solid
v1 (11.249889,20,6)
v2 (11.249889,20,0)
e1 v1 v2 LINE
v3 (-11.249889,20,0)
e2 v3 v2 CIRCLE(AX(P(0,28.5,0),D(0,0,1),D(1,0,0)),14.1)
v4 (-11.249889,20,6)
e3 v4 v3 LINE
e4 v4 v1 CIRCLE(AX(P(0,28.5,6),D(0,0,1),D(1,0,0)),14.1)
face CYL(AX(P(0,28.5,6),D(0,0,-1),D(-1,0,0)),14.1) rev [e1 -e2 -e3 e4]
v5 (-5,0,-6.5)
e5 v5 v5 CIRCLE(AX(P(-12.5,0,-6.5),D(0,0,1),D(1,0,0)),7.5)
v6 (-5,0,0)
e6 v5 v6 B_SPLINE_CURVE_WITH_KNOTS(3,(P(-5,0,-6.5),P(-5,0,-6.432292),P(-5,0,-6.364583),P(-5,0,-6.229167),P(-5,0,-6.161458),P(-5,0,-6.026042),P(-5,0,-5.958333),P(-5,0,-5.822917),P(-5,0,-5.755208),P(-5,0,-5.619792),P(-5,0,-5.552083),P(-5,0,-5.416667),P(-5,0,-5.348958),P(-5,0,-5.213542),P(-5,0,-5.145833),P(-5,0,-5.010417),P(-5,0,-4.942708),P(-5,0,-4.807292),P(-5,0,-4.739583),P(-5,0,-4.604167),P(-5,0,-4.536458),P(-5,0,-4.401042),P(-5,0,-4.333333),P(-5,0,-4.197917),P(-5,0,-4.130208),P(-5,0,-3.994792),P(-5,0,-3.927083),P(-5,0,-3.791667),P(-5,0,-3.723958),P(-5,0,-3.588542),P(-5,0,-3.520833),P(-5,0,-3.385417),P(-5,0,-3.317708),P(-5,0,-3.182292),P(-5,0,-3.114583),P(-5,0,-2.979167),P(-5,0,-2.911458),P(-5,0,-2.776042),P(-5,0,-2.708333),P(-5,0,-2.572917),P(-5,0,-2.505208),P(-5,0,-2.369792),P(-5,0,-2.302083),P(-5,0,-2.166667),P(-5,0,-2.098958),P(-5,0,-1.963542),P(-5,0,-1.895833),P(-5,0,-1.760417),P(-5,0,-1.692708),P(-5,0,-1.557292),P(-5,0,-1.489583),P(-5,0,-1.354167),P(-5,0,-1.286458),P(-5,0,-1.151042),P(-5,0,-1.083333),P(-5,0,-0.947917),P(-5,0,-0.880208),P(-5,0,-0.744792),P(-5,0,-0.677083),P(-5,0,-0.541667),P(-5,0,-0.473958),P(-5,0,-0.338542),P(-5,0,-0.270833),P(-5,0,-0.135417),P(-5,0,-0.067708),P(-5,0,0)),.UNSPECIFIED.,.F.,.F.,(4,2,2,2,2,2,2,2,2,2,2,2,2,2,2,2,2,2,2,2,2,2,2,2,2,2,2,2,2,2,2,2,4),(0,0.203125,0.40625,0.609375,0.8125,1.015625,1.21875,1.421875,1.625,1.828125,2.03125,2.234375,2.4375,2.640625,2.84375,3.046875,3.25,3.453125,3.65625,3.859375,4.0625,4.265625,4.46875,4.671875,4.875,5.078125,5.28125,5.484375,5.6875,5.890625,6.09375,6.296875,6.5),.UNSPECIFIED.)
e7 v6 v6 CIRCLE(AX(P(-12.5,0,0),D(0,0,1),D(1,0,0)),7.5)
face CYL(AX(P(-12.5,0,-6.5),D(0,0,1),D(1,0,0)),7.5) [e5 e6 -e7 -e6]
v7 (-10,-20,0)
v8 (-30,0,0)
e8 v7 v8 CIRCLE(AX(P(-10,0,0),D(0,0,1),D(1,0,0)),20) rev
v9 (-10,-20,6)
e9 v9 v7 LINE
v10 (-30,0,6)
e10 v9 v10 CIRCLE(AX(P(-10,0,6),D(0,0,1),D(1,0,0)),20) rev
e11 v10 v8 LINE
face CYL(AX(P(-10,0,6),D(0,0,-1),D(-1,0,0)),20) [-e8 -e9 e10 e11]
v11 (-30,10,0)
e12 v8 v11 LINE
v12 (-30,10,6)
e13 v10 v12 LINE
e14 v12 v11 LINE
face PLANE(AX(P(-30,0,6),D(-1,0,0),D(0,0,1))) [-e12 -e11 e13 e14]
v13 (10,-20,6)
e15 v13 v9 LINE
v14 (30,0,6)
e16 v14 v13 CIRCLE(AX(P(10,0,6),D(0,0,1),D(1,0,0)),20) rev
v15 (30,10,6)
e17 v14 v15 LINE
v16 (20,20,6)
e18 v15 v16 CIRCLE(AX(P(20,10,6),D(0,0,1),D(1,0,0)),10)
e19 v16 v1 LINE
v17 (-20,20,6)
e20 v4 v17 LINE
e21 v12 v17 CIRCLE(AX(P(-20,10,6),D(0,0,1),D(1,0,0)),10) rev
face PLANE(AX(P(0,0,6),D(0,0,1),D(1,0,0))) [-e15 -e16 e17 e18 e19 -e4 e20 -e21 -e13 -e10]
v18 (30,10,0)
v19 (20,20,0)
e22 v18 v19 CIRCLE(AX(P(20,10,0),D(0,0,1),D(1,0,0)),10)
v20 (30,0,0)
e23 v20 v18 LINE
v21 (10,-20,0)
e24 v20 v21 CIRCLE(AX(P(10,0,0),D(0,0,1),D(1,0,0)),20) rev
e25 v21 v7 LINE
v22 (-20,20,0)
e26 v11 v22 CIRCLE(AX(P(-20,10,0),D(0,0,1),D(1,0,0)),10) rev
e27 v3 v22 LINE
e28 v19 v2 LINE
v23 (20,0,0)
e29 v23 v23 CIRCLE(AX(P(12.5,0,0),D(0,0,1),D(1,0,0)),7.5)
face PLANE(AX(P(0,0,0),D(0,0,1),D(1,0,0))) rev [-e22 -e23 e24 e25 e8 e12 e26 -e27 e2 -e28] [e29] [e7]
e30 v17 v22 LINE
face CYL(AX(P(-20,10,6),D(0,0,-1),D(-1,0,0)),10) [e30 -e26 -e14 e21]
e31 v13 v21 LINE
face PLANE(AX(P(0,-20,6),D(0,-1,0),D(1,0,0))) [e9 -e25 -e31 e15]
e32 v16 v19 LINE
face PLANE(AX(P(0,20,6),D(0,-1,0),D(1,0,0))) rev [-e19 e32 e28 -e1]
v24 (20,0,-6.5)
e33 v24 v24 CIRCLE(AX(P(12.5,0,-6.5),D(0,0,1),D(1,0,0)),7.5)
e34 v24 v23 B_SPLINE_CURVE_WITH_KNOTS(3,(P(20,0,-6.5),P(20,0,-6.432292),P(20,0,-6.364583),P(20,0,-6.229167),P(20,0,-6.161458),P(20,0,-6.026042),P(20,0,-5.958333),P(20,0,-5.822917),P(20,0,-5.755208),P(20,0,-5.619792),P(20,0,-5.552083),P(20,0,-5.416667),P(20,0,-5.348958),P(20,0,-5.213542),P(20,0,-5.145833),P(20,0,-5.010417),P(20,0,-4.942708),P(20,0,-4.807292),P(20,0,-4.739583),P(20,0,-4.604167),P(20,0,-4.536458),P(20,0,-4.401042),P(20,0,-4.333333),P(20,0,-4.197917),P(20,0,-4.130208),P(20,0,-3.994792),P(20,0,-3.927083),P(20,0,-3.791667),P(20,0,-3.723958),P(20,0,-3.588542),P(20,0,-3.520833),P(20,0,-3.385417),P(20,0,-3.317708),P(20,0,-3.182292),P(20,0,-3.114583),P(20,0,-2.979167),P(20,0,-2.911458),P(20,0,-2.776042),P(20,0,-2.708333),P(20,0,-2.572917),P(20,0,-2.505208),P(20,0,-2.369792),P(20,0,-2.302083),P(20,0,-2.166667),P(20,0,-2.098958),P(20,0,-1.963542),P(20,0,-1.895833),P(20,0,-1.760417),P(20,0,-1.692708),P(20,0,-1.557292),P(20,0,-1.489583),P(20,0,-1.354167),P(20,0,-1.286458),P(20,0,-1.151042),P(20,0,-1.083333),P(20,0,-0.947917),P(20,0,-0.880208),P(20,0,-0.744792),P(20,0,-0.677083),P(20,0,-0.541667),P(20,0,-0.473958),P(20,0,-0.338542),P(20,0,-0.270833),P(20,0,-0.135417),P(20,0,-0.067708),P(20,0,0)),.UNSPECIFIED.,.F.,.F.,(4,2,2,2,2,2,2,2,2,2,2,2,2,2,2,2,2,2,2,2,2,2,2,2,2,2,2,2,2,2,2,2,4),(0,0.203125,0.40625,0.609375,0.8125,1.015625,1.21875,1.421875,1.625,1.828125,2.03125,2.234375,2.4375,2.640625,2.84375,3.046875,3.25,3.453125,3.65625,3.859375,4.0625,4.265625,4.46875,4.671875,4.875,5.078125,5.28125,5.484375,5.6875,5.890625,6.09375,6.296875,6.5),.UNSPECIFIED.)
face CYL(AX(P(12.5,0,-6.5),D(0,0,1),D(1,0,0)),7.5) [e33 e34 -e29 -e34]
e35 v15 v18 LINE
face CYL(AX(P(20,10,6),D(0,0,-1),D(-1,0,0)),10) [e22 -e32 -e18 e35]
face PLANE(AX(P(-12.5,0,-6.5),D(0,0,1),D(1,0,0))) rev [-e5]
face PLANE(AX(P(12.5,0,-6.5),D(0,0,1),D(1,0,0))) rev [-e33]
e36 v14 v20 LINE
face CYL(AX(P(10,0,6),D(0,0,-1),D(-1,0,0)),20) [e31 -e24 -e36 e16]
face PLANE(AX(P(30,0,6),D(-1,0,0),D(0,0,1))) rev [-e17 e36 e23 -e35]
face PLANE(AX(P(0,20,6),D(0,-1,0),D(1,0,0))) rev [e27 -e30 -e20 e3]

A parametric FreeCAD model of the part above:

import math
import FreeCAD as App
import Part
import Sketcher
from FreeCAD import Vector
Q = App.Units.Quantity

doc = App.newDocument("Part")
params = doc.addObject("Spreadsheet::Sheet", "Params")
for row, (alias, value) in enumerate([
    ("sketch1_radius", "20 mm"),
    ("sketch1_radius2", "10 mm"),
    ("sketch1_radius3", "14.1 mm"),
    ("sketch1_width", "20 mm"),
    ("sketch1_height", "10 mm"),
    ("pad1_length", "6 mm"),
    ("sketch2_diameter", "15 mm"),
    ("pad2_length", "6.5 mm"),
], start=1):
    params.set(f"A{row}", alias)
    params.set(f"B{row}", "=" + value)
    params.setAlias(f"B{row}", alias)

body = doc.addObject("PartDesign::Body", "Body")

# Sketch on XY plane
sketch1 = body.newObject("Sketcher::SketchObject", "Sketch")
sketch1.AttachmentSupport = (doc.getObject("XY_Plane"), [""])
sketch1.MapMode = "FlatFace"
sketch1.addGeometry(Part.LineSegment(Vector(-10, -20, 0), Vector(10, -20, 0)), False)
sketch1.addGeometry(Part.ArcOfCircle(Part.Circle(Vector(10, 0, 0), Vector(0, 0, 1), 20), math.radians(-90), math.radians(0)), False)
sketch1.addGeometry(Part.LineSegment(Vector(30, 0, 0), Vector(30, 10, 0)), False)
sketch1.addGeometry(Part.ArcOfCircle(Part.Circle(Vector(20, 10, 0), Vector(0, 0, 1), 10), math.radians(0), math.radians(90)), False)
sketch1.addGeometry(Part.LineSegment(Vector(20, 20, 0), Vector(11, 20, 0)), False)
sketch1.addGeometry(Part.ArcOfCircle(Part.Circle(Vector(0, 28, 0), Vector(0, 0, 1), 14), math.radians(-143), math.radians(-37)), False)
sketch1.addGeometry(Part.LineSegment(Vector(-11, 20, 0), Vector(-20, 20, 0)), False)
sketch1.addGeometry(Part.ArcOfCircle(Part.Circle(Vector(-20, 10, 0), Vector(0, 0, 1), 10), math.radians(90), math.radians(180)), False)
sketch1.addGeometry(Part.LineSegment(Vector(-30, 10, 0), Vector(-30, 0, 0)), False)
sketch1.addGeometry(Part.ArcOfCircle(Part.Circle(Vector(-10, 0, 0), Vector(0, 0, 1), 20), math.radians(180), math.radians(270)), False)
sketch1.addConstraint(Sketcher.Constraint("Tangent", 0, 2, 1, 1))
sketch1.addConstraint(Sketcher.Constraint("Tangent", 1, 2, 2, 1))
sketch1.addConstraint(Sketcher.Constraint("Tangent", 2, 2, 3, 1))
sketch1.addConstraint(Sketcher.Constraint("Tangent", 3, 2, 4, 1))
sketch1.addConstraint(Sketcher.Constraint("Coincident", 4, 2, 5, 2))
sketch1.addConstraint(Sketcher.Constraint("Coincident", 5, 1, 6, 1))
sketch1.addConstraint(Sketcher.Constraint("Tangent", 6, 2, 7, 1))
sketch1.addConstraint(Sketcher.Constraint("Tangent", 7, 2, 8, 1))
sketch1.addConstraint(Sketcher.Constraint("Tangent", 8, 2, 9, 1))
sketch1.addConstraint(Sketcher.Constraint("Tangent", 9, 2, 0, 1))
sketch1.addConstraint(Sketcher.Constraint("Horizontal", 0))
sketch1.addConstraint(Sketcher.Constraint("Vertical", 2))
sketch1.addConstraint(Sketcher.Constraint("Horizontal", 4))
sketch1.addConstraint(Sketcher.Constraint("Horizontal", 6))
sketch1.addConstraint(Sketcher.Constraint("Vertical", 8))
sketch1.addConstraint(Sketcher.Constraint("Equal", 3, 7))
sketch1.addConstraint(Sketcher.Constraint("Equal", 1, 9))
sketch1.addConstraint(Sketcher.Constraint("Symmetric", 1, 3, 9, 3, -1, 1))
sketch1.addConstraint(Sketcher.Constraint("Symmetric", 4, 2, 5, 1, -2))
sketch1.addConstraint(Sketcher.Constraint("Radius", 1, Q("20 mm")))
sketch1.addConstraint(Sketcher.Constraint("Radius", 3, Q("10 mm")))
sketch1.addConstraint(Sketcher.Constraint("Radius", 5, Q("14.1 mm")))
sketch1.addConstraint(Sketcher.Constraint("DistanceX", 0, 1, 0, 2, Q("20 mm")))
sketch1.addConstraint(Sketcher.Constraint("DistanceY", 2, 1, 2, 2, Q("10 mm")))
sketch1.addConstraint(Sketcher.Constraint("DistanceY", -1, 1, 5, 3, Q("28.5 mm")))
sketch1.setExpression("Constraints[19]", "Params.sketch1_radius")
sketch1.setExpression("Constraints[20]", "Params.sketch1_radius2")
sketch1.setExpression("Constraints[21]", "Params.sketch1_radius3")
sketch1.setExpression("Constraints[22]", "Params.sketch1_width")
sketch1.setExpression("Constraints[23]", "Params.sketch1_height")
pad1 = body.newObject("PartDesign::Pad", "Pad")
pad1.Profile = sketch1
pad1.setExpression("Length", "Params.pad1_length")

# Sketch on XY plane
sketch2 = body.newObject("Sketcher::SketchObject", "Sketch001")
sketch2.AttachmentSupport = (doc.getObject("XY_Plane"), [""])
sketch2.MapMode = "FlatFace"
sketch2.addGeometry(Part.Circle(Vector(-12, 0, 0), Vector(0, 0, 1), 8), False)
sketch2.addGeometry(Part.Circle(Vector(12, 0, 0), Vector(0, 0, 1), 8), False)
sketch2.addConstraint(Sketcher.Constraint("Equal", 0, 1))
sketch2.addConstraint(Sketcher.Constraint("Symmetric", 0, 3, 1, 3, -1, 1))
sketch2.addConstraint(Sketcher.Constraint("PointOnObject", 0, 3, -1))
sketch2.addConstraint(Sketcher.Constraint("Diameter", 0, Q("15 mm")))
sketch2.addConstraint(Sketcher.Constraint("DistanceX", 0, 3, 1, 3, Q("25 mm")))
sketch2.setExpression("Constraints[3]", "Params.sketch2_diameter")
pad2 = body.newObject("PartDesign::Pad", "Pad001")
pad2.Profile = sketch2
pad2.setExpression("Length", "Params.pad2_length")
pad2.Reversed = True

doc.recompute()
